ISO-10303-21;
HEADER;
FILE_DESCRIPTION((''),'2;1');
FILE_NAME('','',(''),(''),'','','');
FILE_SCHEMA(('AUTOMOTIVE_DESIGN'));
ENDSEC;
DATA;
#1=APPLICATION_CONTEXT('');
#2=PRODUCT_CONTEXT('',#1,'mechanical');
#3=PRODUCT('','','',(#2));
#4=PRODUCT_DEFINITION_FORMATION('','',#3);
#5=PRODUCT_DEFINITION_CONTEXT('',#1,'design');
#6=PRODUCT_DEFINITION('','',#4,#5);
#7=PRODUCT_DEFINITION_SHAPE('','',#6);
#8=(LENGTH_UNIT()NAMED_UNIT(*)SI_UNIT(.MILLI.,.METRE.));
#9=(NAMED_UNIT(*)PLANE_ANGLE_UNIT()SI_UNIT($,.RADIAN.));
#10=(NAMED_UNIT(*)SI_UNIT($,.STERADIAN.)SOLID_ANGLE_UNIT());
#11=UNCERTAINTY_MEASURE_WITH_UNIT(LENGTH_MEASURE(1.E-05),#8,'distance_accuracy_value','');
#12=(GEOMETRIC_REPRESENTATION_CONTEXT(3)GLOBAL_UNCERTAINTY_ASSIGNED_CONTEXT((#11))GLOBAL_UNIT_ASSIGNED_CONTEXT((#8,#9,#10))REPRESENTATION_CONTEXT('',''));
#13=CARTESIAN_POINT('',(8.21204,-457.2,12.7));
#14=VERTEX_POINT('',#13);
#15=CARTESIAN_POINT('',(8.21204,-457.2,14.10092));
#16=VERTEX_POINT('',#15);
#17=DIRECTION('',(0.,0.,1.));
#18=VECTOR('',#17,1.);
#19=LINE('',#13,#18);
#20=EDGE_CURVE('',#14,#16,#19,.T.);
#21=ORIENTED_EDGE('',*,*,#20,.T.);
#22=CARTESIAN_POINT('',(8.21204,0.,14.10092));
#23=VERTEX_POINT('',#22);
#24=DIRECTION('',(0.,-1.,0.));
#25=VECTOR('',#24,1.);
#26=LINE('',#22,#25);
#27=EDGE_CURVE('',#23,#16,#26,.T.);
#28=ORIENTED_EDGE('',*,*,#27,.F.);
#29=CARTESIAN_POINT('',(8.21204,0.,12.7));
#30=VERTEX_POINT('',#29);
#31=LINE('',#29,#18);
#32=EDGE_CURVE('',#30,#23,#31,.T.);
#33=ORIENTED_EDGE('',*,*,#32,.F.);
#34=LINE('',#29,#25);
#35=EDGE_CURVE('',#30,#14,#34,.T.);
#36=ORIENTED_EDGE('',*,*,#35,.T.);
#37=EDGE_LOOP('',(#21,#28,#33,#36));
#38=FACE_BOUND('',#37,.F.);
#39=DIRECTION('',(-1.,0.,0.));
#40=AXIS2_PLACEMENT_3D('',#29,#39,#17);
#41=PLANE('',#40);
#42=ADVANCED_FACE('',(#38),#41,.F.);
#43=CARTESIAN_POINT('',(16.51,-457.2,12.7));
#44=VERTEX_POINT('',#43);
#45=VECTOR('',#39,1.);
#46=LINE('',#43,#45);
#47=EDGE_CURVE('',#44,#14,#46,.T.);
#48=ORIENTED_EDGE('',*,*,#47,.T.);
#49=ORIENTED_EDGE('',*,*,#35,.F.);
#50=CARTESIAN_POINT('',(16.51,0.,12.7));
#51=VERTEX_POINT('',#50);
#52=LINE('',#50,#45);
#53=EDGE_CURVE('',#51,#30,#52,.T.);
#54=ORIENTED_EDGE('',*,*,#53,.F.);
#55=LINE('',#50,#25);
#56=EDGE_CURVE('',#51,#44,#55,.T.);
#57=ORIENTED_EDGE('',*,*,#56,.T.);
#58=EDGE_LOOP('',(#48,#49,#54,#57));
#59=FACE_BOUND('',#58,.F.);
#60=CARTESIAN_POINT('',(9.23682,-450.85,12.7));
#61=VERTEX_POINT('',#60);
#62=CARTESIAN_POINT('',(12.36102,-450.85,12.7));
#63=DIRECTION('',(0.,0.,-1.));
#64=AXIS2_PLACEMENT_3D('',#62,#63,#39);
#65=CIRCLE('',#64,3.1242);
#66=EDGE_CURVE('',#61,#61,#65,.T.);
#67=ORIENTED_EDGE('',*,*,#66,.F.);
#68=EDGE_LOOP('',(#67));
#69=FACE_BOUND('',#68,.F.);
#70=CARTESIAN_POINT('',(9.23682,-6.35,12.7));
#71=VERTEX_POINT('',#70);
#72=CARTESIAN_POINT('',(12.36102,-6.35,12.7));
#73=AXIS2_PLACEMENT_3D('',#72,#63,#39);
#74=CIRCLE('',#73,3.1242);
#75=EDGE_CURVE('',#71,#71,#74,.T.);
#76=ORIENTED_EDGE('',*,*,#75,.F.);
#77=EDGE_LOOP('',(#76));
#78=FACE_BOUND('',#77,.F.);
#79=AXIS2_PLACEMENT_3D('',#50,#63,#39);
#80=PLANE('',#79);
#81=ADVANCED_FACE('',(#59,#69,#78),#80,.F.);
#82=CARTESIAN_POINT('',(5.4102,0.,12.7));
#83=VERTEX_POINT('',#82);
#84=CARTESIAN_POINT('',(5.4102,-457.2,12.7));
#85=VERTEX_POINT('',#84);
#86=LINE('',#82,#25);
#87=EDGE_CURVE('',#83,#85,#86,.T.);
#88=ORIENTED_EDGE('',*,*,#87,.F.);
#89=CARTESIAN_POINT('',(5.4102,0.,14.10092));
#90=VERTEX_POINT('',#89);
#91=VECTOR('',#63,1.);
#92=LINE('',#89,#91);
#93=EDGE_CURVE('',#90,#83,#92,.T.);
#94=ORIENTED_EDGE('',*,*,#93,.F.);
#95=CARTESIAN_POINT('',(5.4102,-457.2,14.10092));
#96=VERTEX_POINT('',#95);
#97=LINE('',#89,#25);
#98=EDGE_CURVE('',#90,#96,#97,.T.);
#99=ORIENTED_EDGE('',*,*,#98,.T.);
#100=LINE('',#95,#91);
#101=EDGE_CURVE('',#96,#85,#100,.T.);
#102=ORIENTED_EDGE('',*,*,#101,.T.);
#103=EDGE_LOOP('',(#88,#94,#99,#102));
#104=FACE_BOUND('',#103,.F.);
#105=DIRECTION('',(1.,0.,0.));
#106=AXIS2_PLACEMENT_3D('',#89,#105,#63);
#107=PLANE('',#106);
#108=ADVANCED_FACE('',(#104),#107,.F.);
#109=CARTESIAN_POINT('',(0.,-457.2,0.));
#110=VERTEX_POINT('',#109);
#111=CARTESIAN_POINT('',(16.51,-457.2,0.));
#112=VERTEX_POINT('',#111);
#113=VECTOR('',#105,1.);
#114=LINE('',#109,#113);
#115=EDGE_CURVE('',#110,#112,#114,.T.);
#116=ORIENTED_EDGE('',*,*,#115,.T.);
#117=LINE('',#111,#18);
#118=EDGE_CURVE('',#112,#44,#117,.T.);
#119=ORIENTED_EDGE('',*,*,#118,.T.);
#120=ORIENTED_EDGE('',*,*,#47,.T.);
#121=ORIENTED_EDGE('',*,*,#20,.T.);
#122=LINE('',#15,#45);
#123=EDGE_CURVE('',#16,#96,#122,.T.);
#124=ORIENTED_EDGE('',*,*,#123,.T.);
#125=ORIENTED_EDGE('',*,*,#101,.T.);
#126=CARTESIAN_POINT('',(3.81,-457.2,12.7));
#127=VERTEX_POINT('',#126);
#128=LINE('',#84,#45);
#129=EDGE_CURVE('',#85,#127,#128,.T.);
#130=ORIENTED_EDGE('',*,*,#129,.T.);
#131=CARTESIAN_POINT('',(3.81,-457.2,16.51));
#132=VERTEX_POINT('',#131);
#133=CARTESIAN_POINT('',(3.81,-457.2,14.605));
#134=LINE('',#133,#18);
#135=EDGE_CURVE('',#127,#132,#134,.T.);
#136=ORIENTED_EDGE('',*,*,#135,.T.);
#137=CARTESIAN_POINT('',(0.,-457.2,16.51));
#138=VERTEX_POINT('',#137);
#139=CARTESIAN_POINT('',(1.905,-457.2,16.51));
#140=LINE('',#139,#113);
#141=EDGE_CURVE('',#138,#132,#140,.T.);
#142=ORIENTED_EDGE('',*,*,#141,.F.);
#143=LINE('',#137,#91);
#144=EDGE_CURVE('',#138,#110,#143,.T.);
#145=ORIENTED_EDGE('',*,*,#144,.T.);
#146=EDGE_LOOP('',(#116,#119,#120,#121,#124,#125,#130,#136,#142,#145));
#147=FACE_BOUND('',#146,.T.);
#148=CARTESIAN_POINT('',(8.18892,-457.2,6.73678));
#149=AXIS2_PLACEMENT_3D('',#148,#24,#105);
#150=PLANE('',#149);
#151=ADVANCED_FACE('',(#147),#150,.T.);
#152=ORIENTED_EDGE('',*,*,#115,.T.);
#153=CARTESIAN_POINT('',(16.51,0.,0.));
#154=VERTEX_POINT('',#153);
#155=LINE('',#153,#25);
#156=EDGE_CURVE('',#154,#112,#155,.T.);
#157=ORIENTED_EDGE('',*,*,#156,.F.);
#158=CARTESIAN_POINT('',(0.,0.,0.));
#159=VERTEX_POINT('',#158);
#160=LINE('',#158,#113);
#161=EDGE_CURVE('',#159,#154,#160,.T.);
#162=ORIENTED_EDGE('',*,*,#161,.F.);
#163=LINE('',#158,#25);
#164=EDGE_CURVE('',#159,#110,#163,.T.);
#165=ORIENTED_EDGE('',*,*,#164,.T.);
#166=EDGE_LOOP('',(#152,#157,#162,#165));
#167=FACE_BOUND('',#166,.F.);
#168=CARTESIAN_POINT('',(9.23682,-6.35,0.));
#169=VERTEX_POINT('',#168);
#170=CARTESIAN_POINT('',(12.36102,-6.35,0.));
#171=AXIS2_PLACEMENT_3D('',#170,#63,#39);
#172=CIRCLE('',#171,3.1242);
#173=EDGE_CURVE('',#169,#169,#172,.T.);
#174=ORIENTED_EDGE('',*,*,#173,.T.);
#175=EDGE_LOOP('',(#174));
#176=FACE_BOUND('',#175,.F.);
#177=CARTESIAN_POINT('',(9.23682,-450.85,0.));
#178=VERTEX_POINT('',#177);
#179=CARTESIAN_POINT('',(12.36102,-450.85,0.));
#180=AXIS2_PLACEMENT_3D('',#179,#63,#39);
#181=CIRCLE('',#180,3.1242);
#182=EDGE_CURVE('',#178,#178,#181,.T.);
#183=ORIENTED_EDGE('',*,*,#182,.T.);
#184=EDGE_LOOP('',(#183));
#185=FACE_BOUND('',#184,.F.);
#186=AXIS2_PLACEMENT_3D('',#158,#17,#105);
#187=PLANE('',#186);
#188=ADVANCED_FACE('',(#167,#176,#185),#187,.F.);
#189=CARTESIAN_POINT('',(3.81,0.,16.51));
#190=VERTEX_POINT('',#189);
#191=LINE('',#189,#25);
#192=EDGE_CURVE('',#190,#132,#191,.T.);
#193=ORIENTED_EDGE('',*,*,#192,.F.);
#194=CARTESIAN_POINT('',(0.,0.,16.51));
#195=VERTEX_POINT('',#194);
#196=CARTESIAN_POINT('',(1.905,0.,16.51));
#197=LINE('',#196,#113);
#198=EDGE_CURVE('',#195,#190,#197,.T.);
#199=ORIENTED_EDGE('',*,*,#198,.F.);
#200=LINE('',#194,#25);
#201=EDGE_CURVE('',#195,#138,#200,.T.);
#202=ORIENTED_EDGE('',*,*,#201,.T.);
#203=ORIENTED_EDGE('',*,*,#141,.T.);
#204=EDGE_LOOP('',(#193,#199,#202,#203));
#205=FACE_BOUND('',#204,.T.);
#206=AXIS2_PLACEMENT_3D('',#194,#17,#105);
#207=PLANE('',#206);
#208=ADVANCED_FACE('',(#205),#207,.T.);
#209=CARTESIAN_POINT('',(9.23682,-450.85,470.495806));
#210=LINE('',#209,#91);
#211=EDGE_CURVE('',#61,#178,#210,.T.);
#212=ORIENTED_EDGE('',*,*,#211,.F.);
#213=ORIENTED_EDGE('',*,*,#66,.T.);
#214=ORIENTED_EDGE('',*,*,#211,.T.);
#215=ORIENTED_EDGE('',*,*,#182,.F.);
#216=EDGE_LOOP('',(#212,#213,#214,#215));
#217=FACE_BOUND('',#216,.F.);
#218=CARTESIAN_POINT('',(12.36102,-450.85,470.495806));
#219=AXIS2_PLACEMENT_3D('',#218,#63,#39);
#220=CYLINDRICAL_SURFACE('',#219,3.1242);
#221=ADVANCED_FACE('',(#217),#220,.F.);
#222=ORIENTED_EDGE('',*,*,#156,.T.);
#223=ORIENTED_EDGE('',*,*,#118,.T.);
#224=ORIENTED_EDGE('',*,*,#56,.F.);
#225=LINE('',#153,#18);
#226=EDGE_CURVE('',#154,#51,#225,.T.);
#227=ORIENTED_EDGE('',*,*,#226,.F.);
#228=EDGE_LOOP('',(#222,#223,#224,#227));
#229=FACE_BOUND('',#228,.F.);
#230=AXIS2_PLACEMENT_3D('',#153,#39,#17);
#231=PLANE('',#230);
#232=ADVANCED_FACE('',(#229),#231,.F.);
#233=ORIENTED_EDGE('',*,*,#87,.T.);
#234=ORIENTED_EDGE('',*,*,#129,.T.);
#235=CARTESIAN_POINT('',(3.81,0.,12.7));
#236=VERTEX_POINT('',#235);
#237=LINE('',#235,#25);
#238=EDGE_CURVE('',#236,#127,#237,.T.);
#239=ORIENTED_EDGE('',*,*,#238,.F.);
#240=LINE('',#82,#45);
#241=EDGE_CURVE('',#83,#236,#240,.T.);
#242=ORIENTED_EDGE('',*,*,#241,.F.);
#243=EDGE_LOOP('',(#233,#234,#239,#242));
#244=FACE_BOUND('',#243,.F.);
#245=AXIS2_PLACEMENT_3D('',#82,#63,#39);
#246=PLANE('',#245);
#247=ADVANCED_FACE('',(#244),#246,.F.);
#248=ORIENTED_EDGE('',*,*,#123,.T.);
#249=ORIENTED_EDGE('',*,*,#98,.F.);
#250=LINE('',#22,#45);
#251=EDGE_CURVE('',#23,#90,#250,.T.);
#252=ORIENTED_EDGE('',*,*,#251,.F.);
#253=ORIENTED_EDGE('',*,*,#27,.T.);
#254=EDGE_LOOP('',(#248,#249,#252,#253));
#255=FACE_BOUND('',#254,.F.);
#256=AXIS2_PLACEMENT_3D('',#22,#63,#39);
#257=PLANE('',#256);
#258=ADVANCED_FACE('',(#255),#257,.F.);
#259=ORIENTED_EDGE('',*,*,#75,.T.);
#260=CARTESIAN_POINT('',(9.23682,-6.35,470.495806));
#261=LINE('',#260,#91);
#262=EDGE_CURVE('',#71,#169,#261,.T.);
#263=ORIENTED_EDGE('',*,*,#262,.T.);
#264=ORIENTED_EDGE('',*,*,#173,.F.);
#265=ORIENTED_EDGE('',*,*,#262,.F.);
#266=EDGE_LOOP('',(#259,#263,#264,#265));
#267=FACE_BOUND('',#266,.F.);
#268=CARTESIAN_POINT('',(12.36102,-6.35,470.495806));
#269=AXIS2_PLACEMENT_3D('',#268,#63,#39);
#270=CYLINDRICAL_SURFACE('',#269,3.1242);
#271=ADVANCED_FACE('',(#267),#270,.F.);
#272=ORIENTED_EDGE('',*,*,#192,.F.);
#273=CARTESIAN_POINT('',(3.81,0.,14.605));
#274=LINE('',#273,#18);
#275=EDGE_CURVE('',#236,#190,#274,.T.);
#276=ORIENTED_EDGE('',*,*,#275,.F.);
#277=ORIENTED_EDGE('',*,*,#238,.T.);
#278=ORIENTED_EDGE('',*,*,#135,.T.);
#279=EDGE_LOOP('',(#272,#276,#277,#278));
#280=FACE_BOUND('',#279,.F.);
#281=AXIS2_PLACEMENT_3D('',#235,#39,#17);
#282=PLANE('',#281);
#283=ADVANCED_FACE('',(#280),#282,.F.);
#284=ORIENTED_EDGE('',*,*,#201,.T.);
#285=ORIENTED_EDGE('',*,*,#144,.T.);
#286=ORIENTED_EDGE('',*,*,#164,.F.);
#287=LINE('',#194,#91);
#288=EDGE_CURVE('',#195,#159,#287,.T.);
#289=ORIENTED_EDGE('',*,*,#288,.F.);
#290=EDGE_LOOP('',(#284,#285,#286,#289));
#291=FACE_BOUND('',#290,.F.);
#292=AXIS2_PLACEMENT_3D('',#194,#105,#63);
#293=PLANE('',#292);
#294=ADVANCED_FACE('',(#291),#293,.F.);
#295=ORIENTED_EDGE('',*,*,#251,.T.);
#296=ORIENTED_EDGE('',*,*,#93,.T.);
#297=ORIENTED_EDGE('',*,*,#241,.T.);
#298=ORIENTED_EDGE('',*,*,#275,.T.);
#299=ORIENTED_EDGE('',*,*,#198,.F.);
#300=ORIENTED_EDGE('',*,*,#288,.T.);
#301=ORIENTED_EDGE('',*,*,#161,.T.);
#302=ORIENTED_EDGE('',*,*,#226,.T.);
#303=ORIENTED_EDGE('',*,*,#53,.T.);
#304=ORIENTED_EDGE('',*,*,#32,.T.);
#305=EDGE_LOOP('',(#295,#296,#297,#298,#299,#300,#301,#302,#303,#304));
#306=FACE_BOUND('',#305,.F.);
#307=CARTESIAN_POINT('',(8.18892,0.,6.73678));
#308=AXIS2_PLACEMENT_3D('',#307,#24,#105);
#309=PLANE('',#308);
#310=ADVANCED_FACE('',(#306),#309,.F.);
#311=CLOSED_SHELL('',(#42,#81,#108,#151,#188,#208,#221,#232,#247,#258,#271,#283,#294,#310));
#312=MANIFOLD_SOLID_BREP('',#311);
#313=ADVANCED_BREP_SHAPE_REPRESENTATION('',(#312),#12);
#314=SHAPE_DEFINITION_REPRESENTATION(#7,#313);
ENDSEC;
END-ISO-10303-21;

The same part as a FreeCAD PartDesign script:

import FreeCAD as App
import Part
import Sketcher
from FreeCAD import Vector
Q = App.Units.Quantity


def add_polygon(sketch, points):
    """Adds a closed chain of lines whose ends are joined by coincident constraints."""
    first, n = sketch.GeometryCount, len(points)
    for a, b in zip(points, points[1:] + points[:1]):
        sketch.addGeometry(Part.LineSegment(App.Vector(*a, 0), App.Vector(*b, 0)), False)
    for i in range(n):
        sketch.addConstraint(Sketcher.Constraint("Coincident", first + i, 2, first + (i + 1) % n, 1))

doc = App.newDocument("Part")
body = doc.addObject("PartDesign::Body", "Body")

sketch1 = body.newObject("Sketcher::SketchObject", "Sketch")
sketch1.AttachmentSupport = (doc.getObject("XZ_Plane"), [""])
sketch1.MapMode = "FlatFace"
add_polygon(sketch1, [(0, 0), (16.5, 0), (16.5, 12.7), (8.2, 12.7), (8.2, 14.1), (5.4, 14.1), (5.4, 12.7), (3.8, 12.7), (3.8, 16.5), (0, 16.5)])
sketch1.addConstraint(Sketcher.Constraint("Horizontal", 0))
sketch1.addConstraint(Sketcher.Constraint("Vertical", 1))
sketch1.addConstraint(Sketcher.Constraint("Horizontal", 2))
sketch1.addConstraint(Sketcher.Constraint("Vertical", 3))
sketch1.addConstraint(Sketcher.Constraint("Horizontal", 4))
sketch1.addConstraint(Sketcher.Constraint("Vertical", 5))
sketch1.addConstraint(Sketcher.Constraint("Horizontal", 6))
sketch1.addConstraint(Sketcher.Constraint("Vertical", 7))
sketch1.addConstraint(Sketcher.Constraint("Horizontal", 8))
sketch1.addConstraint(Sketcher.Constraint("Vertical", 9))
sketch1.addConstraint(Sketcher.Constraint("Coincident", 9, 2, -1, 1))
sketch1.addConstraint(Sketcher.Constraint("Horizontal", 2, 2, 5, 2))
sketch1.addConstraint(Sketcher.Constraint("Equal", 8, 7))
sketch1.addConstraint(Sketcher.Constraint("Equal", 0, 9))
sketch1.addConstraint(Sketcher.Constraint("DistanceY", 1, 1, 1, 2, Q("0.5 in")))
sketch1.addConstraint(Sketcher.Constraint("DistanceX", 0, 1, 0, 2, Q("0.65 in")))
sketch1.addConstraint(Sketcher.Constraint("DistanceX", 6, 2, 6, 1, Q("0.063 in")))
sketch1.addConstraint(Sketcher.Constraint("DistanceX", 2, 2, 2, 1, Q("8.29796 mm")))
sketch1.addConstraint(Sketcher.Constraint("DistanceY", 3, 1, 3, 2, Q("1.40092 mm")))
pad1 = body.newObject("PartDesign::Pad", "Pad")
pad1.Profile = sketch1
pad1.Length = Q("18 in")

sketch2 = body.newObject("Sketcher::SketchObject", "Sketch001")
sketch2.AttachmentSupport = (doc.getObject("XY_Plane"), [""])
sketch2.MapMode = "FlatFace"
sketch2.AttachmentOffset = App.Placement(Vector(0, 0, 0.5 * 25.4), App.Rotation())
sketch2.addGeometry(Part.Circle(Vector(12.4, -6.3, 0), Vector(0, 0, 1), 3.1), False)
sketch2.addGeometry(Part.Circle(Vector(12.4, -450.9, 0), Vector(0, 0, 1), 3.1), False)
sketch2.addConstraint(Sketcher.Constraint("Equal", 0, 1))
sketch2.addConstraint(Sketcher.Constraint("Vertical", 0, 3, 1, 3))
sketch2.addConstraint(Sketcher.Constraint("Diameter", 0, Q("0.246 in")))
sketch2.addConstraint(Sketcher.Constraint("DistanceY", 1, 3, 0, 3, Q("17.5 in")))
sketch2.addConstraint(Sketcher.Constraint("DistanceY", 0, 3, -1, 1, Q("0.25 in")))
sketch2.addConstraint(Sketcher.Constraint("DistanceX", -1, 1, 0, 3, Q("12.36102 mm")))
doc.recompute()
hole = body.newObject("PartDesign::Hole", "Hole")
hole.Profile = sketch2
hole.ThreadType = "None"
hole.Diameter = Q("0.246 in")
hole.DepthType = "ThroughAll"

doc.recompute()
